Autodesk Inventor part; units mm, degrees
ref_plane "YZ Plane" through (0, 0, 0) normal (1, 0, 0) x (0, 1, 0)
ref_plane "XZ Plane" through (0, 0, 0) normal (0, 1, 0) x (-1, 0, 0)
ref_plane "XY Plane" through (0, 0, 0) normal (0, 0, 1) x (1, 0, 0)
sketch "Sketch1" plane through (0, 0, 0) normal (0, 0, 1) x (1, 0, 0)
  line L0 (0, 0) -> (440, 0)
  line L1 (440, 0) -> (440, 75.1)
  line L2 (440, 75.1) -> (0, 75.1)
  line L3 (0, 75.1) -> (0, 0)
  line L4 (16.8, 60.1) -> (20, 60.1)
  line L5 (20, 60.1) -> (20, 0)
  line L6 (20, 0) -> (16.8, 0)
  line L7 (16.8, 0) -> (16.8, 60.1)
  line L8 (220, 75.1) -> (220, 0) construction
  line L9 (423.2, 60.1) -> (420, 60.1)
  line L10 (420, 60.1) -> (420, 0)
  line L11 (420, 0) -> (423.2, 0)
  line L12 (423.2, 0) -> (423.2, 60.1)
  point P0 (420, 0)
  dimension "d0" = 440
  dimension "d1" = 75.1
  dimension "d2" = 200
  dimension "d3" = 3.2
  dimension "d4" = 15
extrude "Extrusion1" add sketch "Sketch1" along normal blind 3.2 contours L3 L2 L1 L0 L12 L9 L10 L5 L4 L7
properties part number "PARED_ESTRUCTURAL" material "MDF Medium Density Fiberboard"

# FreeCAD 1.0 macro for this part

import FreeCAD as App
import Part
import Sketcher

V = App.Vector
Q = App.Units.Quantity

doc = App.newDocument("Part")
params = doc.addObject("Spreadsheet::Sheet", "Params")
for row, (alias, value) in enumerate([
    ("sketch1_width", "440 mm"),
    ("sketch1_width2", "3.2 mm"),
    ("sketch1_height", "75.1 mm"),
    ("sketch1_width3", "400 mm"),
    ("pad1_length", "3.2 mm"),
], start=1):
    params.set(f"A{row}", alias)
    params.set(f"B{row}", "=" + value)
    params.setAlias(f"B{row}", alias)

body = doc.addObject("PartDesign::Body", "Body")

# Sketch on XY plane
sketch1 = body.newObject("Sketcher::SketchObject", "Sketch")
sketch1.AttachmentSupport = (doc.getObject("XY_Plane"), [""])
sketch1.MapMode = "FlatFace"
sketch1.addGeometry([
    Part.LineSegment(V(0, 75.1, 0), V(0, 0, 0)),  # 0
    Part.LineSegment(V(0, 0, 0), V(16.8, 0, 0)),  # 1
    Part.LineSegment(V(16.8, 0, 0), V(16.8, 60.1, 0)),  # 2
    Part.LineSegment(V(16.8, 60.1, 0), V(20, 60.1, 0)),  # 3
    Part.LineSegment(V(20, 60.1, 0), V(20, 0, 0)),  # 4
    Part.LineSegment(V(20, 0, 0), V(420, 0, 0)),  # 5
    Part.LineSegment(V(420, 0, 0), V(420, 60.1, 0)),  # 6
    Part.LineSegment(V(420, 60.1, 0), V(423.2, 60.1, 0)),  # 7
    Part.LineSegment(V(423.2, 60.1, 0), V(423.2, 0, 0)),  # 8
    Part.LineSegment(V(423.2, 0, 0), V(440, 0, 0)),  # 9
    Part.LineSegment(V(440, 0, 0), V(440, 75.1, 0)),  # 10
    Part.LineSegment(V(440, 75.1, 0), V(0, 75.1, 0)),  # 11
], False)
sketch1.addConstraint([
    Sketcher.Constraint("Coincident", 0, 2, 1, 1),
    Sketcher.Constraint("Coincident", 1, 2, 2, 1),
    Sketcher.Constraint("Coincident", 2, 2, 3, 1),
    Sketcher.Constraint("Coincident", 3, 2, 4, 1),
    Sketcher.Constraint("Coincident", 4, 2, 5, 1),
    Sketcher.Constraint("Coincident", 5, 2, 6, 1),
    Sketcher.Constraint("Coincident", 6, 2, 7, 1),
    Sketcher.Constraint("Coincident", 7, 2, 8, 1),
    Sketcher.Constraint("Coincident", 8, 2, 9, 1),
    Sketcher.Constraint("Coincident", 9, 2, 10, 1),
    Sketcher.Constraint("Coincident", 10, 2, 11, 1),
    Sketcher.Constraint("Coincident", 11, 2, 0, 1),
    Sketcher.Constraint("Vertical", 0),
    Sketcher.Constraint("Horizontal", 1),
    Sketcher.Constraint("Vertical", 2),
    Sketcher.Constraint("Horizontal", 3),
    Sketcher.Constraint("Vertical", 4),
    Sketcher.Constraint("Horizontal", 5),
    Sketcher.Constraint("Vertical", 6),
    Sketcher.Constraint("Horizontal", 7),
    Sketcher.Constraint("Vertical", 8),
    Sketcher.Constraint("Horizontal", 9),
    Sketcher.Constraint("Vertical", 10),
    Sketcher.Constraint("Horizontal", 11),
    Sketcher.Constraint("Coincident", 0, 2, -1, 1),
    Sketcher.Constraint("PointOnObject", 4, 2, -1),
    Sketcher.Constraint("PointOnObject", 8, 2, -1),
    Sketcher.Constraint("Horizontal", 3, 2, 6, 2),
    Sketcher.Constraint("Equal", 3, 7),
    Sketcher.Constraint("Equal", 1, 9),
    Sketcher.Constraint("DistanceX", 11, 2, 11, 1, Q("440 mm")),
    Sketcher.Constraint("DistanceX", 3, 1, 3, 2, Q("3.2 mm")),
    Sketcher.Constraint("DistanceY", 0, 2, 0, 1, Q("75.1 mm")),
    Sketcher.Constraint("DistanceY", 7, 2, 10, 2, Q("15 mm")),
    Sketcher.Constraint("DistanceX", 5, 1, 5, 2, Q("400 mm")),
])
sketch1.setExpression("Constraints[30]", "Params.sketch1_width")
sketch1.setExpression("Constraints[31]", "Params.sketch1_width2")
sketch1.setExpression("Constraints[32]", "Params.sketch1_height")
sketch1.setExpression("Constraints[34]", "Params.sketch1_width3")
pad1 = body.newObject("PartDesign::Pad", "Pad")
pad1.Profile = sketch1
pad1.setExpression("Length", "Params.pad1_length")

doc.recompute()
